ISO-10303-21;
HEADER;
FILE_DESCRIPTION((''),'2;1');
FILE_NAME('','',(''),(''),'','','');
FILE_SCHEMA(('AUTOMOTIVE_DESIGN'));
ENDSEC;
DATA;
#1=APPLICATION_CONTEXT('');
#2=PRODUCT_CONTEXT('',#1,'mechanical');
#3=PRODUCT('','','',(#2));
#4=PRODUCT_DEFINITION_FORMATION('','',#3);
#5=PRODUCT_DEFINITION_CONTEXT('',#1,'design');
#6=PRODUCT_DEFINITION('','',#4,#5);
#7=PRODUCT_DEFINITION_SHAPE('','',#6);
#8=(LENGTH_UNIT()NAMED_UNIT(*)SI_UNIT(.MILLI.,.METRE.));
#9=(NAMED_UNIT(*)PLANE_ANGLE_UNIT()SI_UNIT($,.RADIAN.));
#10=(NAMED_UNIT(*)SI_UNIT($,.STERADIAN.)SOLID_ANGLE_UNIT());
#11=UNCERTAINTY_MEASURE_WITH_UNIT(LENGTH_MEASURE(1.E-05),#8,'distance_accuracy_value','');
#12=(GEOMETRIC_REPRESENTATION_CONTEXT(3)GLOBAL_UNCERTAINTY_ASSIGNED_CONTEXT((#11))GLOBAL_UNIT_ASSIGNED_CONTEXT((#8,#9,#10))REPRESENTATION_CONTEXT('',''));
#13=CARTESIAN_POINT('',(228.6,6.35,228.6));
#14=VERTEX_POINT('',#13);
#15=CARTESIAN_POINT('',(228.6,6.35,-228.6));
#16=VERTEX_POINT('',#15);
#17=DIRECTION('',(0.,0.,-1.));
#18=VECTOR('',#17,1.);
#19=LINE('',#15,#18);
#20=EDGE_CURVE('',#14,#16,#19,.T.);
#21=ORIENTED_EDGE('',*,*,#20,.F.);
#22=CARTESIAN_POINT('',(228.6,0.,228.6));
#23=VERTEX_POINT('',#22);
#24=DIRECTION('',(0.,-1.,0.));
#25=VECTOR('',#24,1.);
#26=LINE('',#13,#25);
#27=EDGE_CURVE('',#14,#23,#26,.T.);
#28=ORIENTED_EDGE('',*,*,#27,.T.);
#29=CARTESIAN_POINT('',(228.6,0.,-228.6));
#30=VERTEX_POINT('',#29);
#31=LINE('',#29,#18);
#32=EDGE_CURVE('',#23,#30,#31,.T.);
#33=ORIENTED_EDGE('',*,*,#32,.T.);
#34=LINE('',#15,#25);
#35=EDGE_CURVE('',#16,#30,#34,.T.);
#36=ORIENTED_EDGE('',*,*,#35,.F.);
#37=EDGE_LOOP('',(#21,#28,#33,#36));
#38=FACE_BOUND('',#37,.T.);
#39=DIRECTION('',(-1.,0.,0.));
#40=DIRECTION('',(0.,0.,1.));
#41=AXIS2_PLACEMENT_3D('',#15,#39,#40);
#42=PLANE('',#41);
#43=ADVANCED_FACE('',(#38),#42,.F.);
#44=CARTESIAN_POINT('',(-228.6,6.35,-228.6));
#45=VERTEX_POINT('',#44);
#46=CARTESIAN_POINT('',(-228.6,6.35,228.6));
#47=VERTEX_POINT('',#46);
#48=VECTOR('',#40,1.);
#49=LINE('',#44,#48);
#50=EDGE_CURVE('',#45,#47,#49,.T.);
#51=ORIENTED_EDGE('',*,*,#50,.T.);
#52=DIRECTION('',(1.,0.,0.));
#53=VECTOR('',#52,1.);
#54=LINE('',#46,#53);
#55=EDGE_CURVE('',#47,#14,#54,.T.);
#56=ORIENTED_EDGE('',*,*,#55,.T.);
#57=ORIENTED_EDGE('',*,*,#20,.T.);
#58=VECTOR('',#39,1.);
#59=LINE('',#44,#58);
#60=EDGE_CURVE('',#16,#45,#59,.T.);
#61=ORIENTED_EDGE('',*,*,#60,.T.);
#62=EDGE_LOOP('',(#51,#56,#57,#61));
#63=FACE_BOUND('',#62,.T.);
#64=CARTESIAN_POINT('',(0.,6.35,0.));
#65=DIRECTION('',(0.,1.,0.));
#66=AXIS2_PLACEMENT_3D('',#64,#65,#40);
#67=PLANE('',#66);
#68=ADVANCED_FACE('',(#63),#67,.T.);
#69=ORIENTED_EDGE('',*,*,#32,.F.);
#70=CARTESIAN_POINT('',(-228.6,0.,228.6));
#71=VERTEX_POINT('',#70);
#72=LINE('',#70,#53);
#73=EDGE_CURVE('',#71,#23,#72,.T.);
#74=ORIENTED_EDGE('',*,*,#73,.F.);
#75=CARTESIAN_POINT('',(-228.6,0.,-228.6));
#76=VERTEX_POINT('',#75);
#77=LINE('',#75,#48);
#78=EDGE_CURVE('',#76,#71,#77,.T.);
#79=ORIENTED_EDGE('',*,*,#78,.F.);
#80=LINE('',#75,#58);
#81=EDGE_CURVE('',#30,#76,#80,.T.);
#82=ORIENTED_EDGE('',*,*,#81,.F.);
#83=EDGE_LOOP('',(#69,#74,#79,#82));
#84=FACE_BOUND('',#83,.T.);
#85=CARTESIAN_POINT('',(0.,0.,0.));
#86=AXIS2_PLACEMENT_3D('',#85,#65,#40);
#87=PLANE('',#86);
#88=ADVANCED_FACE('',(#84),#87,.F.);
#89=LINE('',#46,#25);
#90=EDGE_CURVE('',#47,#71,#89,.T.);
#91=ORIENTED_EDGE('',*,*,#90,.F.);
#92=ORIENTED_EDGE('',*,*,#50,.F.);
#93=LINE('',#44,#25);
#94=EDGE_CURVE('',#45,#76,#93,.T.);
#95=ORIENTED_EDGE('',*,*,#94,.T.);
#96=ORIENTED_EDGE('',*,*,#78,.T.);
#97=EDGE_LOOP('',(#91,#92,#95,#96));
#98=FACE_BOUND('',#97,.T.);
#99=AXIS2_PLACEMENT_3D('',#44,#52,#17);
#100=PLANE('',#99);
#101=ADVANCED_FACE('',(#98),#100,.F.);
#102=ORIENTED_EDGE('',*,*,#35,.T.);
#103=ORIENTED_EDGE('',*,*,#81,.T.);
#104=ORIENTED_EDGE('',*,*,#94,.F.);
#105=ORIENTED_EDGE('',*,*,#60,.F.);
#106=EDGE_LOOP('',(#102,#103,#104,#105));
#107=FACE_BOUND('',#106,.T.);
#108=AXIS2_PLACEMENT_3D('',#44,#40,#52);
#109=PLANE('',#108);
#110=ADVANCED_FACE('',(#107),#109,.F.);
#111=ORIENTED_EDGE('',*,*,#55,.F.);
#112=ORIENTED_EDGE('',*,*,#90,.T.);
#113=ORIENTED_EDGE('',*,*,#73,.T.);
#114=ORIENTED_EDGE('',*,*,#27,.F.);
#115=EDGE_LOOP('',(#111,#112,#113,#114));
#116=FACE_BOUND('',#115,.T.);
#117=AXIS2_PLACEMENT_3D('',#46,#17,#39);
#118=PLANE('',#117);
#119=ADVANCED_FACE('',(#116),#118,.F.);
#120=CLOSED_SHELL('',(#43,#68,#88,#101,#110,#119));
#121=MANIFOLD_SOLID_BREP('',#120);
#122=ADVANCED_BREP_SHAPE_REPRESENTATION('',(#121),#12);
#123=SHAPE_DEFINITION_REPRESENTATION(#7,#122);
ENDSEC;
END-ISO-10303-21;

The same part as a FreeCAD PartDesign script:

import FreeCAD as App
import Part
import Sketcher
Q = App.Units.Quantity

doc = App.newDocument("Part")
body = doc.addObject("PartDesign::Body", "Body")

sketch1 = body.newObject("Sketcher::SketchObject", "Sketch")
sketch1.AttachmentSupport = (doc.getObject("XZ_Plane"), [""])
sketch1.MapMode = "FlatFace"
sketch1.addGeometry(Part.LineSegment(App.Vector(-229, -229, 0), App.Vector(-229, 229, 0)), False)
sketch1.addGeometry(Part.LineSegment(App.Vector(-229, 229, 0), App.Vector(229, 229, 0)), False)
sketch1.addGeometry(Part.LineSegment(App.Vector(229, 229, 0), App.Vector(229, -229, 0)), False)
sketch1.addGeometry(Part.LineSegment(App.Vector(229, -229, 0), App.Vector(-229, -229, 0)), False)
sketch1.addConstraint(Sketcher.Constraint("Coincident", 0, 2, 1, 1))
sketch1.addConstraint(Sketcher.Constraint("Coincident", 1, 2, 2, 1))
sketch1.addConstraint(Sketcher.Constraint("Coincident", 2, 2, 3, 1))
sketch1.addConstraint(Sketcher.Constraint("Coincident", 3, 2, 0, 1))
sketch1.addConstraint(Sketcher.Constraint("Vertical", 0))
sketch1.addConstraint(Sketcher.Constraint("Horizontal", 1))
sketch1.addConstraint(Sketcher.Constraint("Vertical", 2))
sketch1.addConstraint(Sketcher.Constraint("Horizontal", 3))
sketch1.addConstraint(Sketcher.Constraint("Symmetric", 0, 2, 2, 2, -1, 1))
sketch1.addConstraint(Sketcher.Constraint("Equal", 3, 0))
sketch1.addConstraint(Sketcher.Constraint("DistanceX", 1, 1, 1, 2, Q("18 in")))
pad1 = body.newObject("PartDesign::Pad", "Pad")
pad1.Profile = sketch1
pad1.Length = Q("0.25 in")
pad1.Reversed = True

doc.recompute()
